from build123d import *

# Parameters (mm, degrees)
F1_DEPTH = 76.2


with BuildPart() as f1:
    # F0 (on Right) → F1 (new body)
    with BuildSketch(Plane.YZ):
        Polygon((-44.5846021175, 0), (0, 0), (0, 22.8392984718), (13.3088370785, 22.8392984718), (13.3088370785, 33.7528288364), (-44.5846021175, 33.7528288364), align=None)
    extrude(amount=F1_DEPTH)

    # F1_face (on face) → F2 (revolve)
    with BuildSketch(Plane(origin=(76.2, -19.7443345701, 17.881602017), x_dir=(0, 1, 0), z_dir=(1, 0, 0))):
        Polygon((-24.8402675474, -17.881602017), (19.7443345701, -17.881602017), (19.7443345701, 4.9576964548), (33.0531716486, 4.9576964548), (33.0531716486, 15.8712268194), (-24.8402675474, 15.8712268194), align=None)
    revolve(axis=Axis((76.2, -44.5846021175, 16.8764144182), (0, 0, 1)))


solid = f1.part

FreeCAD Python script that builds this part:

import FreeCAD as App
import Part
import Sketcher
from FreeCAD import Vector
Q = App.Units.Quantity


def add_polygon(sketch, points):
    """Adds a closed chain of lines whose ends are joined by coincident constraints."""
    first, n = sketch.GeometryCount, len(points)
    for a, b in zip(points, points[1:] + points[:1]):
        sketch.addGeometry(Part.LineSegment(App.Vector(*a, 0), App.Vector(*b, 0)), False)
    for i in range(n):
        sketch.addConstraint(Sketcher.Constraint("Coincident", first + i, 2, first + (i + 1) % n, 1))

doc = App.newDocument("Part")
body = doc.addObject("PartDesign::Body", "Body")

# Sketch on YZ plane
sketch1 = doc.addObject("Sketcher::SketchObject", "Sketch")
body.addObject(sketch1)
sketch1.AttachmentSupport = (doc.YZ_Plane, [""])
sketch1.MapMode = "FlatFace"
add_polygon(sketch1, [(-45, 0), (0, 0), (0, 23), (13, 23), (13, 34), (-45, 34)])  # lines 0-5
sketch1.addConstraint(Sketcher.Constraint("Horizontal", 0))
sketch1.addConstraint(Sketcher.Constraint("Vertical", 1))
sketch1.addConstraint(Sketcher.Constraint("Horizontal", 2))
sketch1.addConstraint(Sketcher.Constraint("Vertical", 3))
sketch1.addConstraint(Sketcher.Constraint("Horizontal", 4))
sketch1.addConstraint(Sketcher.Constraint("Vertical", 5))
sketch1.addConstraint(Sketcher.Constraint("Coincident", 0, 2, -1, 1))
sketch1.addConstraint(Sketcher.Constraint("DistanceY", 1, 1, 1, 2, 22.839298))
sketch1.addConstraint(Sketcher.Constraint("DistanceX", 4, 2, 4, 1, 57.893439))
sketch1.addConstraint(Sketcher.Constraint("DistanceY", 3, 1, 3, 2, 10.91353))
sketch1.addConstraint(Sketcher.Constraint("DistanceX", 0, 1, 0, 2, 44.584602))
pad1 = doc.addObject("PartDesign::Pad", "Pad")
body.addObject(pad1)
pad1.Profile = sketch1
pad1.Length = Q("3 in")

# Sketch on YZ plane
sketch2 = doc.addObject("Sketcher::SketchObject", "Sketch001")
body.addObject(sketch2)
sketch2.AttachmentSupport = (doc.YZ_Plane, [""])
sketch2.MapMode = "FlatFace"
sketch2.AttachmentOffset = App.Placement(Vector(0, 0, 3 * 25.4), App.Rotation())
add_polygon(sketch2, [(-45, 0), (0, 0), (0, 23), (13, 23), (13, 34), (-45, 34)])  # lines 0-5
sketch2.addGeometry(Part.LineSegment(Vector(-45, 0, 0), Vector(-45, 34, 0)), True)  # axis
sketch2.addConstraint(Sketcher.Constraint("Horizontal", 0))
sketch2.addConstraint(Sketcher.Constraint("Vertical", 1))
sketch2.addConstraint(Sketcher.Constraint("Horizontal", 2))
sketch2.addConstraint(Sketcher.Constraint("Vertical", 3))
sketch2.addConstraint(Sketcher.Constraint("Horizontal", 4))
sketch2.addConstraint(Sketcher.Constraint("Vertical", 5))
sketch2.addConstraint(Sketcher.Constraint("Vertical", 6))
sketch2.addConstraint(Sketcher.Constraint("Coincident", 0, 2, -1, 1))
sketch2.addConstraint(Sketcher.Constraint("Coincident", 6, 1, 5, 2))
sketch2.addConstraint(Sketcher.Constraint("Horizontal", 3, 2, 6, 2))
sketch2.addConstraint(Sketcher.Constraint("DistanceY", 1, 1, 1, 2, 22.839298))
sketch2.addConstraint(Sketcher.Constraint("DistanceX", 4, 2, 4, 1, 57.893439))
sketch2.addConstraint(Sketcher.Constraint("DistanceY", 3, 1, 3, 2, 10.91353))
sketch2.addConstraint(Sketcher.Constraint("DistanceX", 0, 1, 0, 2, 44.584602))
revolution = doc.addObject("PartDesign::Revolution", "Revolution")
body.addObject(revolution)
revolution.Profile = sketch2
revolution.ReferenceAxis = (sketch2, ["Axis0"])
revolution.Angle = 360

doc.recompute()
